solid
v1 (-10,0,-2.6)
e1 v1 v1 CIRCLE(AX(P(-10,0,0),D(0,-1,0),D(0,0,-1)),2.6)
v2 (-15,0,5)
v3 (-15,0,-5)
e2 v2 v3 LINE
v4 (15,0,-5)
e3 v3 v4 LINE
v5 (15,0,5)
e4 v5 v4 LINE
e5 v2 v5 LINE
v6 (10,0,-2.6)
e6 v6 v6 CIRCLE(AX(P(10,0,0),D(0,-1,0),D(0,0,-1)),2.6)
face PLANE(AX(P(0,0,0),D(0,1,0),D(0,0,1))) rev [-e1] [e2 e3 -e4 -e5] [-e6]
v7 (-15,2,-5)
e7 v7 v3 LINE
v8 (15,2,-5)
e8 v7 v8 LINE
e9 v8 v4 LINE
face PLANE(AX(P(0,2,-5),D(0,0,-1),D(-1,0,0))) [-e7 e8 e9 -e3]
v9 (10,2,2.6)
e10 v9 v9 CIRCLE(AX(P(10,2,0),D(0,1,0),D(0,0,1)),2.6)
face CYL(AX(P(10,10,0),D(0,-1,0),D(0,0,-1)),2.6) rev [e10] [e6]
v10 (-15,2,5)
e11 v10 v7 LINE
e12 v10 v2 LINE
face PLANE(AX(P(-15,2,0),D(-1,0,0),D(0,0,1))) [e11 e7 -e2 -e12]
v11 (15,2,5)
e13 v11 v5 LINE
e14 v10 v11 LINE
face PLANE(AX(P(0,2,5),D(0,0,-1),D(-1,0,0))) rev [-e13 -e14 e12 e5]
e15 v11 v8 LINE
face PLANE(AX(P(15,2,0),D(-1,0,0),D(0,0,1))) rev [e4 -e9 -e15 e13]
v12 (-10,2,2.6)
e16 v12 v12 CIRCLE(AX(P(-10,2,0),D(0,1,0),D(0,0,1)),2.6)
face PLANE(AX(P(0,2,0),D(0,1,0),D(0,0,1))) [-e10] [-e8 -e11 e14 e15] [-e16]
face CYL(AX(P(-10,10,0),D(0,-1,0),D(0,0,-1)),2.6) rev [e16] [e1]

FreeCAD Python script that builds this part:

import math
import FreeCAD as App
import Part
import Sketcher
Q = App.Units.Quantity

doc = App.newDocument("Part")
params = doc.addObject("Spreadsheet::Sheet", "Params")
for row, (alias, value) in enumerate([
    ("sketch1_radius", "2.5 mm"),
    ("sketch1_width", "30 mm"),
    ("sketch1_height", "10 mm"),
    ("pad1_length", "2 mm"),
    ("sketch2_diameter", "5.2 mm"),
    ("pocket1_length", "10 mm"),
], start=1):
    params.set(f"A{row}", alias)
    params.set(f"B{row}", "=" + value)
    params.setAlias(f"B{row}", alias)

body = doc.addObject("PartDesign::Body", "Body")

sketch1 = body.newObject("Sketcher::SketchObject", "Sketch")
sketch1.AttachmentSupport = (doc.getObject("XZ_Plane"), [""])
sketch1.MapMode = "FlatFace"
sketch1.addGeometry([
    Part.LineSegment(App.Vector(-15, -5, 0), App.Vector(-15, 5, 0)),
    Part.LineSegment(App.Vector(-15, 5, 0), App.Vector(15, 5, 0)),
    Part.LineSegment(App.Vector(15, 5, 0), App.Vector(15, -5, 0)),
    Part.LineSegment(App.Vector(15, -5, 0), App.Vector(-15, -5, 0)),
    Part.ArcOfCircle(Part.Circle(App.Vector(10, 0, 0), App.Vector(0, 0, 1), 2.5), math.radians(0), math.radians(90)),
    Part.ArcOfCircle(Part.Circle(App.Vector(10, 0, 0), App.Vector(0, 0, 1), 2.5), math.radians(90), math.radians(270)),
    Part.ArcOfCircle(Part.Circle(App.Vector(10, 0, 0), App.Vector(0, 0, 1), 2.5), math.radians(-90), math.radians(0)),
    Part.ArcOfCircle(Part.Circle(App.Vector(-10, 0, 0), App.Vector(0, 0, 1), 2.5), math.radians(90), math.radians(270)),
    Part.ArcOfCircle(Part.Circle(App.Vector(-10, 0, 0), App.Vector(0, 0, 1), 2.5), math.radians(-90), math.radians(0)),
    Part.ArcOfCircle(Part.Circle(App.Vector(-10, 0, 0), App.Vector(0, 0, 1), 2.5), math.radians(0), math.radians(90)),
], False)
sketch1.addConstraint([
    Sketcher.Constraint("Coincident", 0, 2, 1, 1),
    Sketcher.Constraint("Coincident", 1, 2, 2, 1),
    Sketcher.Constraint("Coincident", 2, 2, 3, 1),
    Sketcher.Constraint("Coincident", 3, 2, 0, 1),
    Sketcher.Constraint("Tangent", 4, 2, 5, 1),
    Sketcher.Constraint("Tangent", 5, 2, 6, 1),
    Sketcher.Constraint("Tangent", 6, 2, 4, 1),
    Sketcher.Constraint("Tangent", 7, 2, 8, 1),
    Sketcher.Constraint("Tangent", 8, 2, 9, 1),
    Sketcher.Constraint("Tangent", 9, 2, 7, 1),
    Sketcher.Constraint("Vertical", 0),
    Sketcher.Constraint("Horizontal", 1),
    Sketcher.Constraint("Vertical", 2),
    Sketcher.Constraint("Horizontal", 3),
    Sketcher.Constraint("Equal", 6, 7),
    Sketcher.Constraint("Symmetric", 4, 3, 7, 3, -1, 1),
    Sketcher.Constraint("Symmetric", 0, 2, 2, 2, -1, 1),
    Sketcher.Constraint("Symmetric", 5, 2, 7, 2, -2),
    Sketcher.Constraint("PointOnObject", 6, 2, -1),
    Sketcher.Constraint("PointOnObject", 8, 2, -1),
    Sketcher.Constraint("Vertical", 6, 3, 4, 2),
    Sketcher.Constraint("Vertical", 4, 2, 5, 2),
    Sketcher.Constraint("Vertical", 7, 2, 9, 2),
    Sketcher.Constraint("Radius", 4, Q("2.5 mm")),
    Sketcher.Constraint("DistanceX", 1, 1, 1, 2, Q("30 mm")),
    Sketcher.Constraint("DistanceY", 0, 1, 0, 2, Q("10 mm")),
    Sketcher.Constraint("DistanceX", -1, 1, 4, 3, Q("10 mm")),
])
sketch1.setExpression("Constraints[23]", "Params.sketch1_radius")
sketch1.setExpression("Constraints[24]", "Params.sketch1_width")
sketch1.setExpression("Constraints[25]", "Params.sketch1_height")
pad1 = body.newObject("PartDesign::Pad", "Pad")
pad1.Profile = sketch1
pad1.setExpression("Length", "Params.pad1_length")
pad1.Reversed = True

sketch2 = body.newObject("Sketcher::SketchObject", "Sketch001")
sketch2.AttachmentSupport = (doc.getObject("XZ_Plane"), [""])
sketch2.MapMode = "FlatFace"
sketch2.addGeometry([
    Part.Circle(App.Vector(-10, 0, 0), App.Vector(0, 0, 1), 2.6),
    Part.Circle(App.Vector(10, 0, 0), App.Vector(0, 0, 1), 2.6),
], False)
sketch2.addConstraint([
    Sketcher.Constraint("Equal", 0, 1),
    Sketcher.Constraint("Symmetric", 0, 3, 1, 3, -1, 1),
    Sketcher.Constraint("PointOnObject", 0, 3, -1),
    Sketcher.Constraint("Diameter", 0, Q("5.2 mm")),
    Sketcher.Constraint("DistanceX", 0, 3, -1, 1, Q("10 mm")),
])
sketch2.setExpression("Constraints[3]", "Params.sketch2_diameter")
pocket1 = body.newObject("PartDesign::Pocket", "Pocket")
pocket1.Profile = sketch2
pocket1.setExpression("Length", "Params.pocket1_length")

doc.recompute()
